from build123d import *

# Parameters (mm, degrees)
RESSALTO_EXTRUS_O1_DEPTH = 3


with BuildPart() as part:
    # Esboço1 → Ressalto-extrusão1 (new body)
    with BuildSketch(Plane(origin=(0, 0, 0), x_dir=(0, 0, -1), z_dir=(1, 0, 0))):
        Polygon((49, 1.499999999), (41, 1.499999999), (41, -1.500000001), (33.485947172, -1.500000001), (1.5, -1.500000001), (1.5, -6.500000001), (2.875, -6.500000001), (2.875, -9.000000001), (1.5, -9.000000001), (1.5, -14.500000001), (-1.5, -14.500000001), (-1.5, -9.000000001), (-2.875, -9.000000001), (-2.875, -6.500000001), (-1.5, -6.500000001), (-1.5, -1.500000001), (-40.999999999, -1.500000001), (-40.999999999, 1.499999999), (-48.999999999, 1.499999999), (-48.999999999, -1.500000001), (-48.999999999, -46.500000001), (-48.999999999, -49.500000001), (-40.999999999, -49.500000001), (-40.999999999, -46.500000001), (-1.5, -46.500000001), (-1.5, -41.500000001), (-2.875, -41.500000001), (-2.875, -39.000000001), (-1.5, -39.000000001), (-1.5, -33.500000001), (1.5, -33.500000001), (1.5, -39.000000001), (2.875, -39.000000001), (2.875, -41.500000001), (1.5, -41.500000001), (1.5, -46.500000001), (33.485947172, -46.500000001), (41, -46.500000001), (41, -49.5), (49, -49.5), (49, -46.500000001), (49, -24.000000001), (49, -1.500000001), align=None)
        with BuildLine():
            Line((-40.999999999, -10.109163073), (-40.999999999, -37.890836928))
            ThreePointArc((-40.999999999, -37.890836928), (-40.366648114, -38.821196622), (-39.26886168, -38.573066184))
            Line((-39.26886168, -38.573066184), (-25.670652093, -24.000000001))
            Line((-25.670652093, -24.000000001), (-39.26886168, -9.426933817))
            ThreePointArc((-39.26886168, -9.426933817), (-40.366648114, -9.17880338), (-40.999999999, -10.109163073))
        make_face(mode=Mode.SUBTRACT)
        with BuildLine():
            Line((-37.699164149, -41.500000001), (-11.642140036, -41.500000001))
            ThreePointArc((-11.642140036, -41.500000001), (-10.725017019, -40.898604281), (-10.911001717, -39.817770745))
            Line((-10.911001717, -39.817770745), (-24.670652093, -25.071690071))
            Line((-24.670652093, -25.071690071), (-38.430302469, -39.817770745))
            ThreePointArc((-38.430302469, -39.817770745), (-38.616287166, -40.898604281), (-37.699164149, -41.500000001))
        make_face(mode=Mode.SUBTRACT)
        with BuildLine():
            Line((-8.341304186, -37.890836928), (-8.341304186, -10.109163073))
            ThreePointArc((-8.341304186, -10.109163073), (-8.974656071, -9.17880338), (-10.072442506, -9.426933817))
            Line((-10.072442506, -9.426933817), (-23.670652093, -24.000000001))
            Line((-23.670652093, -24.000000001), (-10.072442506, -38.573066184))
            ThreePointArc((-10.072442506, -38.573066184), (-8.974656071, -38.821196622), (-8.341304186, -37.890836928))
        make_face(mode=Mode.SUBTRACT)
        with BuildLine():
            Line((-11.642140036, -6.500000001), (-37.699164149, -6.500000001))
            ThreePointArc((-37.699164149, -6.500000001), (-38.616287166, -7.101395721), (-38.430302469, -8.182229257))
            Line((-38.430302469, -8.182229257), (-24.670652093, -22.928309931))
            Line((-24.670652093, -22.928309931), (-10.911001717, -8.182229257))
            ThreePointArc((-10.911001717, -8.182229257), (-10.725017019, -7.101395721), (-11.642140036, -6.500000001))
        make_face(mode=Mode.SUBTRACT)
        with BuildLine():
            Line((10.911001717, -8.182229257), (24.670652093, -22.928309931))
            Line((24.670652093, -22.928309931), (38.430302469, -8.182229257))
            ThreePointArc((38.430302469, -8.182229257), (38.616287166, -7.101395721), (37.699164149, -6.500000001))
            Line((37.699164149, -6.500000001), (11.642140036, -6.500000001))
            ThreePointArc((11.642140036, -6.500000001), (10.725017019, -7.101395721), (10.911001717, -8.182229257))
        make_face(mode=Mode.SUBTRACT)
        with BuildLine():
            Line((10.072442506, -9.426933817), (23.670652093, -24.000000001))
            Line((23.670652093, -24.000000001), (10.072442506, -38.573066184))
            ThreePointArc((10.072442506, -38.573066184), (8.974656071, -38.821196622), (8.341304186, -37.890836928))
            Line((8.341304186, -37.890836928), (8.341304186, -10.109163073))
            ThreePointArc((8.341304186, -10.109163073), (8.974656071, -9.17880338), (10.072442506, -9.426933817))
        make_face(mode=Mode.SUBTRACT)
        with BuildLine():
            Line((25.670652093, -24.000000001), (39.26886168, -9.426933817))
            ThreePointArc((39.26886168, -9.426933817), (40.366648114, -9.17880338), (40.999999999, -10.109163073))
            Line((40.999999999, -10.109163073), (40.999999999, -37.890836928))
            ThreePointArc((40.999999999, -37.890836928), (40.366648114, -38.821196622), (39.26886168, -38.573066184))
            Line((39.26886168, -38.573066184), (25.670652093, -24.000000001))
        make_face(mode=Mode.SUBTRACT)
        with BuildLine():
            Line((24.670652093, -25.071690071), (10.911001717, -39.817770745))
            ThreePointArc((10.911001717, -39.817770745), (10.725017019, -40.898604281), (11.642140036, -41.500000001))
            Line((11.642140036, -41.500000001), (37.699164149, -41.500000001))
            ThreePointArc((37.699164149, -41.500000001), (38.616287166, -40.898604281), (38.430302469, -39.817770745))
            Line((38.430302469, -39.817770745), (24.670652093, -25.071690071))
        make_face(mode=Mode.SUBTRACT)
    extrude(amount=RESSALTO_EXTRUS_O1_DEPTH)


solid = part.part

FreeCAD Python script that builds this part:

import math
import FreeCAD as App
import Part
import Sketcher
from FreeCAD import Vector
Q = App.Units.Quantity

doc = App.newDocument("Part")
body = doc.addObject("PartDesign::Body", "Body")

sketch1 = body.newObject("Sketcher::SketchObject", "Sketch")
sketch1.AttachmentSupport = (doc.getObject("YZ_Plane"), [""])
sketch1.MapMode = "FlatFace"
sketch1.addGeometry(Part.LineSegment(Vector(1.5, -49, 0), Vector(1.5, -41, 0)), False)
sketch1.addGeometry(Part.LineSegment(Vector(1.5, -41, 0), Vector(-1.5, -41, 0)), False)
sketch1.addGeometry(Part.LineSegment(Vector(-1.5, -41, 0), Vector(-1.5, -1.5, 0)), False)
sketch1.addGeometry(Part.LineSegment(Vector(-1.5, -1.5, 0), Vector(-6.5, -1.5, 0)), False)
sketch1.addGeometry(Part.LineSegment(Vector(-6.5, -1.5, 0), Vector(-6.5, -2.875, 0)), False)
sketch1.addGeometry(Part.LineSegment(Vector(-6.5, -2.875, 0), Vector(-9, -2.875, 0)), False)
sketch1.addGeometry(Part.LineSegment(Vector(-9, -2.875, 0), Vector(-9, -1.5, 0)), False)
sketch1.addGeometry(Part.LineSegment(Vector(-9, -1.5, 0), Vector(-14.5, -1.5, 0)), False)
sketch1.addGeometry(Part.LineSegment(Vector(-14.5, -1.5, 0), Vector(-14.5, 1.5, 0)), False)
sketch1.addGeometry(Part.LineSegment(Vector(-14.5, 1.5, 0), Vector(-9, 1.5, 0)), False)
sketch1.addGeometry(Part.LineSegment(Vector(-9, 1.5, 0), Vector(-9, 2.875, 0)), False)
sketch1.addGeometry(Part.LineSegment(Vector(-9, 2.875, 0), Vector(-6.5, 2.875, 0)), False)
sketch1.addGeometry(Part.LineSegment(Vector(-6.5, 2.875, 0), Vector(-6.5, 1.5, 0)), False)
sketch1.addGeometry(Part.LineSegment(Vector(-6.5, 1.5, 0), Vector(-1.5, 1.5, 0)), False)
sketch1.addGeometry(Part.LineSegment(Vector(-1.5, 1.5, 0), Vector(-1.5, 41, 0)), False)
sketch1.addGeometry(Part.LineSegment(Vector(-1.5, 41, 0), Vector(1.5, 41, 0)), False)
sketch1.addGeometry(Part.LineSegment(Vector(1.5, 41, 0), Vector(1.5, 49, 0)), False)
sketch1.addGeometry(Part.LineSegment(Vector(1.5, 49, 0), Vector(-49.5, 49, 0)), False)
sketch1.addGeometry(Part.LineSegment(Vector(-49.5, 49, 0), Vector(-49.5, 41, 0)), False)
sketch1.addGeometry(Part.LineSegment(Vector(-49.5, 41, 0), Vector(-46.5, 41, 0)), False)
sketch1.addGeometry(Part.LineSegment(Vector(-46.5, 41, 0), Vector(-46.5, 1.5, 0)), False)
sketch1.addGeometry(Part.LineSegment(Vector(-46.5, 1.5, 0), Vector(-41.5, 1.5, 0)), False)
sketch1.addGeometry(Part.LineSegment(Vector(-41.5, 1.5, 0), Vector(-41.5, 2.875, 0)), False)
sketch1.addGeometry(Part.LineSegment(Vector(-41.5, 2.875, 0), Vector(-39, 2.875, 0)), False)
sketch1.addGeometry(Part.LineSegment(Vector(-39, 2.875, 0), Vector(-39, 1.5, 0)), False)
sketch1.addGeometry(Part.LineSegment(Vector(-39, 1.5, 0), Vector(-33.5, 1.5, 0)), False)
sketch1.addGeometry(Part.LineSegment(Vector(-33.5, 1.5, 0), Vector(-33.5, -1.5, 0)), False)
sketch1.addGeometry(Part.LineSegment(Vector(-33.5, -1.5, 0), Vector(-39, -1.5, 0)), False)
sketch1.addGeometry(Part.LineSegment(Vector(-39, -1.5, 0), Vector(-39, -2.875, 0)), False)
sketch1.addGeometry(Part.LineSegment(Vector(-39, -2.875, 0), Vector(-41.5, -2.875, 0)), False)
sketch1.addGeometry(Part.LineSegment(Vector(-41.5, -2.875, 0), Vector(-41.5, -1.5, 0)), False)
sketch1.addGeometry(Part.LineSegment(Vector(-41.5, -1.5, 0), Vector(-46.5, -1.5, 0)), False)
sketch1.addGeometry(Part.LineSegment(Vector(-46.5, -1.5, 0), Vector(-46.5, -41, 0)), False)
sketch1.addGeometry(Part.LineSegment(Vector(-46.5, -41, 0), Vector(-49.5, -41, 0)), False)
sketch1.addGeometry(Part.LineSegment(Vector(-49.5, -41, 0), Vector(-49.5, -49, 0)), False)
sketch1.addGeometry(Part.LineSegment(Vector(-49.5, -49, 0), Vector(1.5, -49, 0)), False)
sketch1.addGeometry(Part.LineSegment(Vector(-41.5, 11.64214, 0), Vector(-41.5, 37.699164, 0)), False)
sketch1.addGeometry(Part.ArcOfCircle(Part.Circle(Vector(-40.5, 37.699164, 0), Vector(0, 0, 1), 1), math.radians(46.981908), math.radians(180)), False)
sketch1.addGeometry(Part.LineSegment(Vector(-39.817771, 38.430302, 0), Vector(-25.07169, 24.670652, 0)), False)
sketch1.addGeometry(Part.LineSegment(Vector(-25.07169, 24.670652, 0), Vector(-39.817771, 10.911002, 0)), False)
sketch1.addGeometry(Part.ArcOfCircle(Part.Circle(Vector(-40.5, 11.64214, 0), Vector(0, 0, 1), 1), math.radians(180), math.radians(313.018092)), False)
sketch1.addGeometry(Part.LineSegment(Vector(-39.817771, -10.911002, 0), Vector(-25.07169, -24.670652, 0)), False)
sketch1.addGeometry(Part.LineSegment(Vector(-25.07169, -24.670652, 0), Vector(-39.817771, -38.430302, 0)), False)
sketch1.addGeometry(Part.ArcOfCircle(Part.Circle(Vector(-40.5, -37.699164, 0), Vector(0, 0, 1), 1), math.radians(180), math.radians(313.018092)), False)
sketch1.addGeometry(Part.LineSegment(Vector(-41.5, -37.699164, 0), Vector(-41.5, -11.64214, 0)), False)
sketch1.addGeometry(Part.ArcOfCircle(Part.Circle(Vector(-40.5, -11.64214, 0), Vector(0, 0, 1), 1), math.radians(46.981908), math.radians(180)), False)
sketch1.addGeometry(Part.LineSegment(Vector(-37.890837, 41, 0), Vector(-10.109163, 41, 0)), False)
sketch1.addGeometry(Part.ArcOfCircle(Part.Circle(Vector(-10.109163, 40, 0), Vector(0, 0, 1), 1), math.radians(-46.981908), math.radians(90)), False)
sketch1.addGeometry(Part.LineSegment(Vector(-9.426934, 39.268862, 0), Vector(-24, 25.670652, 0)), False)
sketch1.addGeometry(Part.LineSegment(Vector(-24, 25.670652, 0), Vector(-38.573066, 39.268862, 0)), False)
sketch1.addGeometry(Part.ArcOfCircle(Part.Circle(Vector(-37.890837, 40, 0), Vector(0, 0, 1), 1), math.radians(90), math.radians(226.981908)), False)
sketch1.addGeometry(Part.LineSegment(Vector(-10.109163, 8.341304, 0), Vector(-37.890837, 8.341304, 0)), False)
sketch1.addGeometry(Part.ArcOfCircle(Part.Circle(Vector(-37.890837, 9.341304, 0), Vector(0, 0, 1), 1), math.radians(133.018092), math.radians(270)), False)
sketch1.addGeometry(Part.LineSegment(Vector(-38.573066, 10.072443, 0), Vector(-24, 23.670652, 0)), False)
sketch1.addGeometry(Part.LineSegment(Vector(-24, 23.670652, 0), Vector(-9.426934, 10.072443, 0)), False)
sketch1.addGeometry(Part.ArcOfCircle(Part.Circle(Vector(-10.109163, 9.341304, 0), Vector(0, 0, 1), 1), math.radians(-90), math.radians(46.981908)), False)
sketch1.addGeometry(Part.LineSegment(Vector(-6.5, 37.699164, 0), Vector(-6.5, 11.64214, 0)), False)
sketch1.addGeometry(Part.ArcOfCircle(Part.Circle(Vector(-7.5, 11.64214, 0), Vector(0, 0, 1), 1), math.radians(-133.018092), math.radians(0)), False)
sketch1.addGeometry(Part.LineSegment(Vector(-8.182229, 10.911002, 0), Vector(-22.92831, 24.670652, 0)), False)
sketch1.addGeometry(Part.LineSegment(Vector(-22.92831, 24.670652, 0), Vector(-8.182229, 38.430302, 0)), False)
sketch1.addGeometry(Part.ArcOfCircle(Part.Circle(Vector(-7.5, 37.699164, 0), Vector(0, 0, 1), 1), math.radians(0), math.radians(133.018092)), False)
sketch1.addGeometry(Part.ArcOfCircle(Part.Circle(Vector(-10.109163, -9.341304, 0), Vector(0, 0, 1), 1), math.radians(-46.981908), math.radians(90)), False)
sketch1.addGeometry(Part.LineSegment(Vector(-9.426934, -10.072443, 0), Vector(-24, -23.670652, 0)), False)
sketch1.addGeometry(Part.LineSegment(Vector(-24, -23.670652, 0), Vector(-38.573066, -10.072443, 0)), False)
sketch1.addGeometry(Part.ArcOfCircle(Part.Circle(Vector(-37.890837, -9.341304, 0), Vector(0, 0, 1), 1), math.radians(90), math.radians(226.981908)), False)
sketch1.addGeometry(Part.LineSegment(Vector(-37.890837, -8.341304, 0), Vector(-10.109163, -8.341304, 0)), False)
sketch1.addGeometry(Part.LineSegment(Vector(-38.573066, -39.268862, 0), Vector(-24, -25.670652, 0)), False)
sketch1.addGeometry(Part.LineSegment(Vector(-24, -25.670652, 0), Vector(-9.426934, -39.268862, 0)), False)
sketch1.addGeometry(Part.ArcOfCircle(Part.Circle(Vector(-10.109163, -40, 0), Vector(0, 0, 1), 1), math.radians(-90), math.radians(46.981908)), False)
sketch1.addGeometry(Part.LineSegment(Vector(-10.109163, -41, 0), Vector(-37.890837, -41, 0)), False)
sketch1.addGeometry(Part.ArcOfCircle(Part.Circle(Vector(-37.890837, -40, 0), Vector(0, 0, 1), 1), math.radians(133.018092), math.radians(270)), False)
sketch1.addGeometry(Part.LineSegment(Vector(-22.92831, -24.670652, 0), Vector(-8.182229, -10.911002, 0)), False)
sketch1.addGeometry(Part.ArcOfCircle(Part.Circle(Vector(-7.5, -11.64214, 0), Vector(0, 0, 1), 1), math.radians(0), math.radians(133.018092)), False)
sketch1.addGeometry(Part.LineSegment(Vector(-6.5, -11.64214, 0), Vector(-6.5, -37.699164, 0)), False)
sketch1.addGeometry(Part.ArcOfCircle(Part.Circle(Vector(-7.5, -37.699164, 0), Vector(0, 0, 1), 1), math.radians(-133.018092), math.radians(0)), False)
sketch1.addGeometry(Part.LineSegment(Vector(-8.182229, -38.430302, 0), Vector(-22.92831, -24.670652, 0)), False)
sketch1.addConstraint(Sketcher.Constraint("Coincident", 0, 2, 1, 1))
sketch1.addConstraint(Sketcher.Constraint("Coincident", 1, 2, 2, 1))
sketch1.addConstraint(Sketcher.Constraint("Coincident", 2, 2, 3, 1))
sketch1.addConstraint(Sketcher.Constraint("Coincident", 3, 2, 4, 1))
sketch1.addConstraint(Sketcher.Constraint("Coincident", 4, 2, 5, 1))
sketch1.addConstraint(Sketcher.Constraint("Coincident", 5, 2, 6, 1))
sketch1.addConstraint(Sketcher.Constraint("Coincident", 6, 2, 7, 1))
sketch1.addConstraint(Sketcher.Constraint("Coincident", 7, 2, 8, 1))
sketch1.addConstraint(Sketcher.Constraint("Coincident", 8, 2, 9, 1))
sketch1.addConstraint(Sketcher.Constraint("Coincident", 9, 2, 10, 1))
sketch1.addConstraint(Sketcher.Constraint("Coincident", 10, 2, 11, 1))
sketch1.addConstraint(Sketcher.Constraint("Coincident", 11, 2, 12, 1))
sketch1.addConstraint(Sketcher.Constraint("Coincident", 12, 2, 13, 1))
sketch1.addConstraint(Sketcher.Constraint("Coincident", 13, 2, 14, 1))
sketch1.addConstraint(Sketcher.Constraint("Coincident", 14, 2, 15, 1))
sketch1.addConstraint(Sketcher.Constraint("Coincident", 15, 2, 16, 1))
sketch1.addConstraint(Sketcher.Constraint("Coincident", 16, 2, 17, 1))
sketch1.addConstraint(Sketcher.Constraint("Coincident", 17, 2, 18, 1))
sketch1.addConstraint(Sketcher.Constraint("Coincident", 18, 2, 19, 1))
sketch1.addConstraint(Sketcher.Constraint("Coincident", 19, 2, 20, 1))
sketch1.addConstraint(Sketcher.Constraint("Coincident", 20, 2, 21, 1))
sketch1.addConstraint(Sketcher.Constraint("Coincident", 21, 2, 22, 1))
sketch1.addConstraint(Sketcher.Constraint("Coincident", 22, 2, 23, 1))
sketch1.addConstraint(Sketcher.Constraint("Coincident", 23, 2, 24, 1))
sketch1.addConstraint(Sketcher.Constraint("Coincident", 24, 2, 25, 1))
sketch1.addConstraint(Sketcher.Constraint("Coincident", 25, 2, 26, 1))
sketch1.addConstraint(Sketcher.Constraint("Coincident", 26, 2, 27, 1))
sketch1.addConstraint(Sketcher.Constraint("Coincident", 27, 2, 28, 1))
sketch1.addConstraint(Sketcher.Constraint("Coincident", 28, 2, 29, 1))
sketch1.addConstraint(Sketcher.Constraint("Coincident", 29, 2, 30, 1))
sketch1.addConstraint(Sketcher.Constraint("Coincident", 30, 2, 31, 1))
sketch1.addConstraint(Sketcher.Constraint("Coincident", 31, 2, 32, 1))
sketch1.addConstraint(Sketcher.Constraint("Coincident", 32, 2, 33, 1))
sketch1.addConstraint(Sketcher.Constraint("Coincident", 33, 2, 34, 1))
sketch1.addConstraint(Sketcher.Constraint("Coincident", 34, 2, 35, 1))
sketch1.addConstraint(Sketcher.Constraint("Coincident", 35, 2, 0, 1))
sketch1.addConstraint(Sketcher.Constraint("Tangent", 36, 2, 37, 2))
sketch1.addConstraint(Sketcher.Constraint("Tangent", 37, 1, 38, 1))
sketch1.addConstraint(Sketcher.Constraint("Coincident", 38, 2, 39, 1))
sketch1.addConstraint(Sketcher.Constraint("Tangent", 39, 2, 40, 2))
sketch1.addConstraint(Sketcher.Constraint("Tangent", 40, 1, 36, 1))
sketch1.addConstraint(Sketcher.Constraint("Coincident", 41, 2, 42, 1))
sketch1.addConstraint(Sketcher.Constraint("Tangent", 42, 2, 43, 2))
sketch1.addConstraint(Sketcher.Constraint("Tangent", 43, 1, 44, 1))
sketch1.addConstraint(Sketcher.Constraint("Tangent", 44, 2, 45, 2))
sketch1.addConstraint(Sketcher.Constraint("Tangent", 45, 1, 41, 1))
sketch1.addConstraint(Sketcher.Constraint("Tangent", 46, 2, 47, 2))
sketch1.addConstraint(Sketcher.Constraint("Tangent", 47, 1, 48, 1))
sketch1.addConstraint(Sketcher.Constraint("Coincident", 48, 2, 49, 1))
sketch1.addConstraint(Sketcher.Constraint("Tangent", 49, 2, 50, 2))
sketch1.addConstraint(Sketcher.Constraint("Tangent", 50, 1, 46, 1))
sketch1.addConstraint(Sketcher.Constraint("Tangent", 51, 2, 52, 2))
sketch1.addConstraint(Sketcher.Constraint("Tangent", 52, 1, 53, 1))
sketch1.addConstraint(Sketcher.Constraint("Coincident", 53, 2, 54, 1))
sketch1.addConstraint(Sketcher.Constraint("Tangent", 54, 2, 55, 2))
sketch1.addConstraint(Sketcher.Constraint("Tangent", 55, 1, 51, 1))
sketch1.addConstraint(Sketcher.Constraint("Tangent", 56, 2, 57, 2))
sketch1.addConstraint(Sketcher.Constraint("Tangent", 57, 1, 58, 1))
sketch1.addConstraint(Sketcher.Constraint("Coincident", 58, 2, 59, 1))
sketch1.addConstraint(Sketcher.Constraint("Tangent", 59, 2, 60, 2))
sketch1.addConstraint(Sketcher.Constraint("Tangent", 60, 1, 56, 1))
sketch1.addConstraint(Sketcher.Constraint("Tangent", 61, 1, 62, 1))
sketch1.addConstraint(Sketcher.Constraint("Coincident", 62, 2, 63, 1))
sketch1.addConstraint(Sketcher.Constraint("Tangent", 63, 2, 64, 2))
sketch1.addConstraint(Sketcher.Constraint("Tangent", 64, 1, 65, 1))
sketch1.addConstraint(Sketcher.Constraint("Tangent", 65, 2, 61, 2))
sketch1.addConstraint(Sketcher.Constraint("Coincident", 66, 2, 67, 1))
sketch1.addConstraint(Sketcher.Constraint("Tangent", 67, 2, 68, 2))
sketch1.addConstraint(Sketcher.Constraint("Tangent", 68, 1, 69, 1))
sketch1.addConstraint(Sketcher.Constraint("Tangent", 69, 2, 70, 2))
sketch1.addConstraint(Sketcher.Constraint("Tangent", 70, 1, 66, 1))
sketch1.addConstraint(Sketcher.Constraint("Tangent", 71, 2, 72, 2))
sketch1.addConstraint(Sketcher.Constraint("Tangent", 72, 1, 73, 1))
sketch1.addConstraint(Sketcher.Constraint("Tangent", 73, 2, 74, 2))
sketch1.addConstraint(Sketcher.Constraint("Tangent", 74, 1, 75, 1))
sketch1.addConstraint(Sketcher.Constraint("Coincident", 75, 2, 71, 1))
sketch1.addConstraint(Sketcher.Constraint("Vertical", 0))
sketch1.addConstraint(Sketcher.Constraint("Horizontal", 1))
sketch1.addConstraint(Sketcher.Constraint("Vertical", 2))
sketch1.addConstraint(Sketcher.Constraint("Horizontal", 3))
sketch1.addConstraint(Sketcher.Constraint("Vertical", 4))
sketch1.addConstraint(Sketcher.Constraint("Horizontal", 5))
sketch1.addConstraint(Sketcher.Constraint("Vertical", 6))
sketch1.addConstraint(Sketcher.Constraint("Horizontal", 7))
sketch1.addConstraint(Sketcher.Constraint("Vertical", 8))
sketch1.addConstraint(Sketcher.Constraint("Horizontal", 9))
sketch1.addConstraint(Sketcher.Constraint("Vertical", 10))
sketch1.addConstraint(Sketcher.Constraint("Horizontal", 11))
sketch1.addConstraint(Sketcher.Constraint("Vertical", 12))
sketch1.addConstraint(Sketcher.Constraint("Horizontal", 13))
sketch1.addConstraint(Sketcher.Constraint("Vertical", 14))
sketch1.addConstraint(Sketcher.Constraint("Horizontal", 15))
sketch1.addConstraint(Sketcher.Constraint("Vertical", 16))
sketch1.addConstraint(Sketcher.Constraint("Horizontal", 17))
sketch1.addConstraint(Sketcher.Constraint("Vertical", 18))
sketch1.addConstraint(Sketcher.Constraint("Horizontal", 19))
sketch1.addConstraint(Sketcher.Constraint("Vertical", 20))
sketch1.addConstraint(Sketcher.Constraint("Horizontal", 21))
sketch1.addConstraint(Sketcher.Constraint("Vertical", 22))
sketch1.addConstraint(Sketcher.Constraint("Horizontal", 23))
sketch1.addConstraint(Sketcher.Constraint("Vertical", 24))
sketch1.addConstraint(Sketcher.Constraint("Horizontal", 25))
sketch1.addConstraint(Sketcher.Constraint("Vertical", 26))
sketch1.addConstraint(Sketcher.Constraint("Horizontal", 27))
sketch1.addConstraint(Sketcher.Constraint("Vertical", 28))
sketch1.addConstraint(Sketcher.Constraint("Horizontal", 29))
sketch1.addConstraint(Sketcher.Constraint("Vertical", 30))
sketch1.addConstraint(Sketcher.Constraint("Horizontal", 31))
sketch1.addConstraint(Sketcher.Constraint("Vertical", 32))
sketch1.addConstraint(Sketcher.Constraint("Horizontal", 33))
sketch1.addConstraint(Sketcher.Constraint("Vertical", 34))
sketch1.addConstraint(Sketcher.Constraint("Horizontal", 35))
sketch1.addConstraint(Sketcher.Constraint("Vertical", 36))
sketch1.addConstraint(Sketcher.Constraint("Vertical", 44))
sketch1.addConstraint(Sketcher.Constraint("Horizontal", 46))
sketch1.addConstraint(Sketcher.Constraint("Horizontal", 51))
sketch1.addConstraint(Sketcher.Constraint("Vertical", 56))
sketch1.addConstraint(Sketcher.Constraint("Horizontal", 65))
sketch1.addConstraint(Sketcher.Constraint("Horizontal", 69))
sketch1.addConstraint(Sketcher.Constraint("Vertical", 73))
sketch1.addConstraint(Sketcher.Constraint("Equal", 37, 40))
sketch1.addConstraint(Sketcher.Constraint("Equal", 40, 43))
sketch1.addConstraint(Sketcher.Constraint("Equal", 43, 45))
sketch1.addConstraint(Sketcher.Constraint("Equal", 45, 47))
sketch1.addConstraint(Sketcher.Constraint("Equal", 47, 50))
sketch1.addConstraint(Sketcher.Constraint("Equal", 50, 52))
sketch1.addConstraint(Sketcher.Constraint("Equal", 52, 55))
sketch1.addConstraint(Sketcher.Constraint("Equal", 55, 57))
sketch1.addConstraint(Sketcher.Constraint("Equal", 57, 60))
sketch1.addConstraint(Sketcher.Constraint("Equal", 60, 61))
sketch1.addConstraint(Sketcher.Constraint("Equal", 61, 64))
sketch1.addConstraint(Sketcher.Constraint("Equal", 64, 68))
sketch1.addConstraint(Sketcher.Constraint("Equal", 68, 70))
sketch1.addConstraint(Sketcher.Constraint("Equal", 70, 72))
sketch1.addConstraint(Sketcher.Constraint("Equal", 72, 74))
sketch1.addConstraint(Sketcher.Constraint("Symmetric", 0, 2, 14, 2, -1, 1))
sketch1.addConstraint(Sketcher.Constraint("Symmetric", 37, 3, 43, 3, -1))
sketch1.addConstraint(Sketcher.Constraint("Symmetric", 55, 3, 61, 3, -1))
sketch1.addConstraint(Sketcher.Constraint("Symmetric", 47, 3, 68, 3, -1))
sketch1.addConstraint(Sketcher.Constraint("Symmetric", 57, 3, 72, 3, -1))
sketch1.addConstraint(Sketcher.Constraint("Symmetric", 6, 2, 9, 2, -1))
sketch1.addConstraint(Sketcher.Constraint("Symmetric", 4, 2, 11, 2, -1))
sketch1.addConstraint(Sketcher.Constraint("Symmetric", 2, 2, 13, 2, -1))
sketch1.addConstraint(Sketcher.Constraint("Symmetric", 24, 2, 27, 2, -1))
sketch1.addConstraint(Sketcher.Constraint("Symmetric", 22, 2, 29, 2, -1))
sketch1.addConstraint(Sketcher.Constraint("Symmetric", 20, 2, 31, 2, -1))
sketch1.addConstraint(Sketcher.Constraint("Symmetric", 18, 2, 33, 2, -1))
sketch1.addConstraint(Sketcher.Constraint("Symmetric", 16, 2, 35, 2, -1))
sketch1.addConstraint(Sketcher.Constraint("Symmetric", 38, 2, 41, 2, -1))
sketch1.addConstraint(Sketcher.Constraint("Symmetric", 53, 2, 62, 2, -1))
sketch1.addConstraint(Sketcher.Constraint("Symmetric", 48, 2, 66, 2, -1))
sketch1.addConstraint(Sketcher.Constraint("Symmetric", 59, 2, 74, 1, -1))
sketch1.addConstraint(Sketcher.Constraint("Parallel", 38, 41))
sketch1.addConstraint(Sketcher.Constraint("Parallel", 39, 42))
sketch1.addConstraint(Sketcher.Constraint("Parallel", 42, 48))
sketch1.addConstraint(Sketcher.Constraint("Parallel", 41, 49))
sketch1.addConstraint(Sketcher.Constraint("Parallel", 48, 53))
sketch1.addConstraint(Sketcher.Constraint("Parallel", 49, 54))
sketch1.addConstraint(Sketcher.Constraint("Parallel", 54, 58))
sketch1.addConstraint(Sketcher.Constraint("Parallel", 53, 59))
sketch1.addConstraint(Sketcher.Constraint("Parallel", 58, 63))
sketch1.addConstraint(Sketcher.Constraint("Parallel", 62, 66))
sketch1.addConstraint(Sketcher.Constraint("Parallel", 66, 71))
sketch1.addConstraint(Sketcher.Constraint("Horizontal", 40, 3, 57, 3))
sketch1.addConstraint(Sketcher.Constraint("Horizontal", 37, 3, 60, 3))
sketch1.addConstraint(Sketcher.Constraint("Horizontal", 3, 2, 6, 2))
sketch1.addConstraint(Sketcher.Constraint("Horizontal", 15, 2, 18, 2))
sketch1.addConstraint(Sketcher.Constraint("Horizontal", 13, 2, 20, 2))
sketch1.addConstraint(Sketcher.Constraint("Horizontal", 11, 2, 22, 2))
sketch1.addConstraint(Sketcher.Constraint("Horizontal", 21, 2, 24, 2))
sketch1.addConstraint(Sketcher.Constraint("Horizontal", 19, 2, 46, 2))
sketch1.addConstraint(Sketcher.Constraint("Vertical", 50, 3, 52, 3))
sketch1.addConstraint(Sketcher.Constraint("Vertical", 47, 3, 55, 3))
sketch1.addConstraint(Sketcher.Constraint("Vertical", 30, 2, 36, 2))
sketch1.addConstraint(Sketcher.Constraint("Vertical", 12, 2, 56, 2))
sketch1.addConstraint(Sketcher.Constraint("Equal", 15, 19))
sketch1.addConstraint(Sketcher.Constraint("Equal", 13, 21))
sketch1.addConstraint(Sketcher.Constraint("Equal", 11, 23))
sketch1.addConstraint(Sketcher.Constraint("Equal", 9, 25))
sketch1.addConstraint(Sketcher.Constraint("Equal", 33, 8))
sketch1.addConstraint(Sketcher.Constraint("Radius", 37, Q("1 mm")))
sketch1.addConstraint(Sketcher.Constraint("DistanceX", 1, 2, 1, 1, Q("3 mm")))
sketch1.addConstraint(Sketcher.Constraint("DistanceX", 3, 2, 3, 1, Q("5 mm")))
sketch1.addConstraint(Sketcher.Constraint("DistanceX", 17, 2, 17, 1, Q("51 mm")))
sketch1.addConstraint(Sketcher.Constraint("DistanceY", 0, 1, 0, 2, Q("8 mm")))
sketch1.addConstraint(Sketcher.Constraint("DistanceX", 5, 2, 5, 1, Q("2.5 mm")))
sketch1.addConstraint(Sketcher.Constraint("DistanceX", 7, 2, 7, 1, Q("5.5 mm")))
sketch1.addConstraint(Sketcher.Constraint("DistanceY", 2, 1, 2, 2, Q("39.5 mm")))
sketch1.addConstraint(Sketcher.Constraint("DistanceX", 48, 2, -1, 1, Q("24 mm")))
sketch1.addConstraint(Sketcher.Constraint("DistanceY", 4, 2, 4, 1, Q("1.375 mm")))
sketch1.addConstraint(Sketcher.Constraint("DistanceY", -1, 1, 39, 2, Q("10.911002 mm")))
sketch1.addConstraint(Sketcher.Constraint("Distance", 38, Q("20.168661 mm")))
sketch1.addConstraint(Sketcher.Constraint("DistanceX", 46, 1, 46, 2, Q("27.781674 mm")))
sketch1.addConstraint(Sketcher.Constraint("DistanceY", 36, 1, 36, 2, Q("26.057024 mm")))
sketch1.addConstraint(Sketcher.Constraint("DistanceY", -1, 1, 52, 3, Q("9.341304 mm")))
pad1 = body.newObject("PartDesign::Pad", "Pad")
pad1.Profile = sketch1
pad1.Length = 3

doc.recompute()
